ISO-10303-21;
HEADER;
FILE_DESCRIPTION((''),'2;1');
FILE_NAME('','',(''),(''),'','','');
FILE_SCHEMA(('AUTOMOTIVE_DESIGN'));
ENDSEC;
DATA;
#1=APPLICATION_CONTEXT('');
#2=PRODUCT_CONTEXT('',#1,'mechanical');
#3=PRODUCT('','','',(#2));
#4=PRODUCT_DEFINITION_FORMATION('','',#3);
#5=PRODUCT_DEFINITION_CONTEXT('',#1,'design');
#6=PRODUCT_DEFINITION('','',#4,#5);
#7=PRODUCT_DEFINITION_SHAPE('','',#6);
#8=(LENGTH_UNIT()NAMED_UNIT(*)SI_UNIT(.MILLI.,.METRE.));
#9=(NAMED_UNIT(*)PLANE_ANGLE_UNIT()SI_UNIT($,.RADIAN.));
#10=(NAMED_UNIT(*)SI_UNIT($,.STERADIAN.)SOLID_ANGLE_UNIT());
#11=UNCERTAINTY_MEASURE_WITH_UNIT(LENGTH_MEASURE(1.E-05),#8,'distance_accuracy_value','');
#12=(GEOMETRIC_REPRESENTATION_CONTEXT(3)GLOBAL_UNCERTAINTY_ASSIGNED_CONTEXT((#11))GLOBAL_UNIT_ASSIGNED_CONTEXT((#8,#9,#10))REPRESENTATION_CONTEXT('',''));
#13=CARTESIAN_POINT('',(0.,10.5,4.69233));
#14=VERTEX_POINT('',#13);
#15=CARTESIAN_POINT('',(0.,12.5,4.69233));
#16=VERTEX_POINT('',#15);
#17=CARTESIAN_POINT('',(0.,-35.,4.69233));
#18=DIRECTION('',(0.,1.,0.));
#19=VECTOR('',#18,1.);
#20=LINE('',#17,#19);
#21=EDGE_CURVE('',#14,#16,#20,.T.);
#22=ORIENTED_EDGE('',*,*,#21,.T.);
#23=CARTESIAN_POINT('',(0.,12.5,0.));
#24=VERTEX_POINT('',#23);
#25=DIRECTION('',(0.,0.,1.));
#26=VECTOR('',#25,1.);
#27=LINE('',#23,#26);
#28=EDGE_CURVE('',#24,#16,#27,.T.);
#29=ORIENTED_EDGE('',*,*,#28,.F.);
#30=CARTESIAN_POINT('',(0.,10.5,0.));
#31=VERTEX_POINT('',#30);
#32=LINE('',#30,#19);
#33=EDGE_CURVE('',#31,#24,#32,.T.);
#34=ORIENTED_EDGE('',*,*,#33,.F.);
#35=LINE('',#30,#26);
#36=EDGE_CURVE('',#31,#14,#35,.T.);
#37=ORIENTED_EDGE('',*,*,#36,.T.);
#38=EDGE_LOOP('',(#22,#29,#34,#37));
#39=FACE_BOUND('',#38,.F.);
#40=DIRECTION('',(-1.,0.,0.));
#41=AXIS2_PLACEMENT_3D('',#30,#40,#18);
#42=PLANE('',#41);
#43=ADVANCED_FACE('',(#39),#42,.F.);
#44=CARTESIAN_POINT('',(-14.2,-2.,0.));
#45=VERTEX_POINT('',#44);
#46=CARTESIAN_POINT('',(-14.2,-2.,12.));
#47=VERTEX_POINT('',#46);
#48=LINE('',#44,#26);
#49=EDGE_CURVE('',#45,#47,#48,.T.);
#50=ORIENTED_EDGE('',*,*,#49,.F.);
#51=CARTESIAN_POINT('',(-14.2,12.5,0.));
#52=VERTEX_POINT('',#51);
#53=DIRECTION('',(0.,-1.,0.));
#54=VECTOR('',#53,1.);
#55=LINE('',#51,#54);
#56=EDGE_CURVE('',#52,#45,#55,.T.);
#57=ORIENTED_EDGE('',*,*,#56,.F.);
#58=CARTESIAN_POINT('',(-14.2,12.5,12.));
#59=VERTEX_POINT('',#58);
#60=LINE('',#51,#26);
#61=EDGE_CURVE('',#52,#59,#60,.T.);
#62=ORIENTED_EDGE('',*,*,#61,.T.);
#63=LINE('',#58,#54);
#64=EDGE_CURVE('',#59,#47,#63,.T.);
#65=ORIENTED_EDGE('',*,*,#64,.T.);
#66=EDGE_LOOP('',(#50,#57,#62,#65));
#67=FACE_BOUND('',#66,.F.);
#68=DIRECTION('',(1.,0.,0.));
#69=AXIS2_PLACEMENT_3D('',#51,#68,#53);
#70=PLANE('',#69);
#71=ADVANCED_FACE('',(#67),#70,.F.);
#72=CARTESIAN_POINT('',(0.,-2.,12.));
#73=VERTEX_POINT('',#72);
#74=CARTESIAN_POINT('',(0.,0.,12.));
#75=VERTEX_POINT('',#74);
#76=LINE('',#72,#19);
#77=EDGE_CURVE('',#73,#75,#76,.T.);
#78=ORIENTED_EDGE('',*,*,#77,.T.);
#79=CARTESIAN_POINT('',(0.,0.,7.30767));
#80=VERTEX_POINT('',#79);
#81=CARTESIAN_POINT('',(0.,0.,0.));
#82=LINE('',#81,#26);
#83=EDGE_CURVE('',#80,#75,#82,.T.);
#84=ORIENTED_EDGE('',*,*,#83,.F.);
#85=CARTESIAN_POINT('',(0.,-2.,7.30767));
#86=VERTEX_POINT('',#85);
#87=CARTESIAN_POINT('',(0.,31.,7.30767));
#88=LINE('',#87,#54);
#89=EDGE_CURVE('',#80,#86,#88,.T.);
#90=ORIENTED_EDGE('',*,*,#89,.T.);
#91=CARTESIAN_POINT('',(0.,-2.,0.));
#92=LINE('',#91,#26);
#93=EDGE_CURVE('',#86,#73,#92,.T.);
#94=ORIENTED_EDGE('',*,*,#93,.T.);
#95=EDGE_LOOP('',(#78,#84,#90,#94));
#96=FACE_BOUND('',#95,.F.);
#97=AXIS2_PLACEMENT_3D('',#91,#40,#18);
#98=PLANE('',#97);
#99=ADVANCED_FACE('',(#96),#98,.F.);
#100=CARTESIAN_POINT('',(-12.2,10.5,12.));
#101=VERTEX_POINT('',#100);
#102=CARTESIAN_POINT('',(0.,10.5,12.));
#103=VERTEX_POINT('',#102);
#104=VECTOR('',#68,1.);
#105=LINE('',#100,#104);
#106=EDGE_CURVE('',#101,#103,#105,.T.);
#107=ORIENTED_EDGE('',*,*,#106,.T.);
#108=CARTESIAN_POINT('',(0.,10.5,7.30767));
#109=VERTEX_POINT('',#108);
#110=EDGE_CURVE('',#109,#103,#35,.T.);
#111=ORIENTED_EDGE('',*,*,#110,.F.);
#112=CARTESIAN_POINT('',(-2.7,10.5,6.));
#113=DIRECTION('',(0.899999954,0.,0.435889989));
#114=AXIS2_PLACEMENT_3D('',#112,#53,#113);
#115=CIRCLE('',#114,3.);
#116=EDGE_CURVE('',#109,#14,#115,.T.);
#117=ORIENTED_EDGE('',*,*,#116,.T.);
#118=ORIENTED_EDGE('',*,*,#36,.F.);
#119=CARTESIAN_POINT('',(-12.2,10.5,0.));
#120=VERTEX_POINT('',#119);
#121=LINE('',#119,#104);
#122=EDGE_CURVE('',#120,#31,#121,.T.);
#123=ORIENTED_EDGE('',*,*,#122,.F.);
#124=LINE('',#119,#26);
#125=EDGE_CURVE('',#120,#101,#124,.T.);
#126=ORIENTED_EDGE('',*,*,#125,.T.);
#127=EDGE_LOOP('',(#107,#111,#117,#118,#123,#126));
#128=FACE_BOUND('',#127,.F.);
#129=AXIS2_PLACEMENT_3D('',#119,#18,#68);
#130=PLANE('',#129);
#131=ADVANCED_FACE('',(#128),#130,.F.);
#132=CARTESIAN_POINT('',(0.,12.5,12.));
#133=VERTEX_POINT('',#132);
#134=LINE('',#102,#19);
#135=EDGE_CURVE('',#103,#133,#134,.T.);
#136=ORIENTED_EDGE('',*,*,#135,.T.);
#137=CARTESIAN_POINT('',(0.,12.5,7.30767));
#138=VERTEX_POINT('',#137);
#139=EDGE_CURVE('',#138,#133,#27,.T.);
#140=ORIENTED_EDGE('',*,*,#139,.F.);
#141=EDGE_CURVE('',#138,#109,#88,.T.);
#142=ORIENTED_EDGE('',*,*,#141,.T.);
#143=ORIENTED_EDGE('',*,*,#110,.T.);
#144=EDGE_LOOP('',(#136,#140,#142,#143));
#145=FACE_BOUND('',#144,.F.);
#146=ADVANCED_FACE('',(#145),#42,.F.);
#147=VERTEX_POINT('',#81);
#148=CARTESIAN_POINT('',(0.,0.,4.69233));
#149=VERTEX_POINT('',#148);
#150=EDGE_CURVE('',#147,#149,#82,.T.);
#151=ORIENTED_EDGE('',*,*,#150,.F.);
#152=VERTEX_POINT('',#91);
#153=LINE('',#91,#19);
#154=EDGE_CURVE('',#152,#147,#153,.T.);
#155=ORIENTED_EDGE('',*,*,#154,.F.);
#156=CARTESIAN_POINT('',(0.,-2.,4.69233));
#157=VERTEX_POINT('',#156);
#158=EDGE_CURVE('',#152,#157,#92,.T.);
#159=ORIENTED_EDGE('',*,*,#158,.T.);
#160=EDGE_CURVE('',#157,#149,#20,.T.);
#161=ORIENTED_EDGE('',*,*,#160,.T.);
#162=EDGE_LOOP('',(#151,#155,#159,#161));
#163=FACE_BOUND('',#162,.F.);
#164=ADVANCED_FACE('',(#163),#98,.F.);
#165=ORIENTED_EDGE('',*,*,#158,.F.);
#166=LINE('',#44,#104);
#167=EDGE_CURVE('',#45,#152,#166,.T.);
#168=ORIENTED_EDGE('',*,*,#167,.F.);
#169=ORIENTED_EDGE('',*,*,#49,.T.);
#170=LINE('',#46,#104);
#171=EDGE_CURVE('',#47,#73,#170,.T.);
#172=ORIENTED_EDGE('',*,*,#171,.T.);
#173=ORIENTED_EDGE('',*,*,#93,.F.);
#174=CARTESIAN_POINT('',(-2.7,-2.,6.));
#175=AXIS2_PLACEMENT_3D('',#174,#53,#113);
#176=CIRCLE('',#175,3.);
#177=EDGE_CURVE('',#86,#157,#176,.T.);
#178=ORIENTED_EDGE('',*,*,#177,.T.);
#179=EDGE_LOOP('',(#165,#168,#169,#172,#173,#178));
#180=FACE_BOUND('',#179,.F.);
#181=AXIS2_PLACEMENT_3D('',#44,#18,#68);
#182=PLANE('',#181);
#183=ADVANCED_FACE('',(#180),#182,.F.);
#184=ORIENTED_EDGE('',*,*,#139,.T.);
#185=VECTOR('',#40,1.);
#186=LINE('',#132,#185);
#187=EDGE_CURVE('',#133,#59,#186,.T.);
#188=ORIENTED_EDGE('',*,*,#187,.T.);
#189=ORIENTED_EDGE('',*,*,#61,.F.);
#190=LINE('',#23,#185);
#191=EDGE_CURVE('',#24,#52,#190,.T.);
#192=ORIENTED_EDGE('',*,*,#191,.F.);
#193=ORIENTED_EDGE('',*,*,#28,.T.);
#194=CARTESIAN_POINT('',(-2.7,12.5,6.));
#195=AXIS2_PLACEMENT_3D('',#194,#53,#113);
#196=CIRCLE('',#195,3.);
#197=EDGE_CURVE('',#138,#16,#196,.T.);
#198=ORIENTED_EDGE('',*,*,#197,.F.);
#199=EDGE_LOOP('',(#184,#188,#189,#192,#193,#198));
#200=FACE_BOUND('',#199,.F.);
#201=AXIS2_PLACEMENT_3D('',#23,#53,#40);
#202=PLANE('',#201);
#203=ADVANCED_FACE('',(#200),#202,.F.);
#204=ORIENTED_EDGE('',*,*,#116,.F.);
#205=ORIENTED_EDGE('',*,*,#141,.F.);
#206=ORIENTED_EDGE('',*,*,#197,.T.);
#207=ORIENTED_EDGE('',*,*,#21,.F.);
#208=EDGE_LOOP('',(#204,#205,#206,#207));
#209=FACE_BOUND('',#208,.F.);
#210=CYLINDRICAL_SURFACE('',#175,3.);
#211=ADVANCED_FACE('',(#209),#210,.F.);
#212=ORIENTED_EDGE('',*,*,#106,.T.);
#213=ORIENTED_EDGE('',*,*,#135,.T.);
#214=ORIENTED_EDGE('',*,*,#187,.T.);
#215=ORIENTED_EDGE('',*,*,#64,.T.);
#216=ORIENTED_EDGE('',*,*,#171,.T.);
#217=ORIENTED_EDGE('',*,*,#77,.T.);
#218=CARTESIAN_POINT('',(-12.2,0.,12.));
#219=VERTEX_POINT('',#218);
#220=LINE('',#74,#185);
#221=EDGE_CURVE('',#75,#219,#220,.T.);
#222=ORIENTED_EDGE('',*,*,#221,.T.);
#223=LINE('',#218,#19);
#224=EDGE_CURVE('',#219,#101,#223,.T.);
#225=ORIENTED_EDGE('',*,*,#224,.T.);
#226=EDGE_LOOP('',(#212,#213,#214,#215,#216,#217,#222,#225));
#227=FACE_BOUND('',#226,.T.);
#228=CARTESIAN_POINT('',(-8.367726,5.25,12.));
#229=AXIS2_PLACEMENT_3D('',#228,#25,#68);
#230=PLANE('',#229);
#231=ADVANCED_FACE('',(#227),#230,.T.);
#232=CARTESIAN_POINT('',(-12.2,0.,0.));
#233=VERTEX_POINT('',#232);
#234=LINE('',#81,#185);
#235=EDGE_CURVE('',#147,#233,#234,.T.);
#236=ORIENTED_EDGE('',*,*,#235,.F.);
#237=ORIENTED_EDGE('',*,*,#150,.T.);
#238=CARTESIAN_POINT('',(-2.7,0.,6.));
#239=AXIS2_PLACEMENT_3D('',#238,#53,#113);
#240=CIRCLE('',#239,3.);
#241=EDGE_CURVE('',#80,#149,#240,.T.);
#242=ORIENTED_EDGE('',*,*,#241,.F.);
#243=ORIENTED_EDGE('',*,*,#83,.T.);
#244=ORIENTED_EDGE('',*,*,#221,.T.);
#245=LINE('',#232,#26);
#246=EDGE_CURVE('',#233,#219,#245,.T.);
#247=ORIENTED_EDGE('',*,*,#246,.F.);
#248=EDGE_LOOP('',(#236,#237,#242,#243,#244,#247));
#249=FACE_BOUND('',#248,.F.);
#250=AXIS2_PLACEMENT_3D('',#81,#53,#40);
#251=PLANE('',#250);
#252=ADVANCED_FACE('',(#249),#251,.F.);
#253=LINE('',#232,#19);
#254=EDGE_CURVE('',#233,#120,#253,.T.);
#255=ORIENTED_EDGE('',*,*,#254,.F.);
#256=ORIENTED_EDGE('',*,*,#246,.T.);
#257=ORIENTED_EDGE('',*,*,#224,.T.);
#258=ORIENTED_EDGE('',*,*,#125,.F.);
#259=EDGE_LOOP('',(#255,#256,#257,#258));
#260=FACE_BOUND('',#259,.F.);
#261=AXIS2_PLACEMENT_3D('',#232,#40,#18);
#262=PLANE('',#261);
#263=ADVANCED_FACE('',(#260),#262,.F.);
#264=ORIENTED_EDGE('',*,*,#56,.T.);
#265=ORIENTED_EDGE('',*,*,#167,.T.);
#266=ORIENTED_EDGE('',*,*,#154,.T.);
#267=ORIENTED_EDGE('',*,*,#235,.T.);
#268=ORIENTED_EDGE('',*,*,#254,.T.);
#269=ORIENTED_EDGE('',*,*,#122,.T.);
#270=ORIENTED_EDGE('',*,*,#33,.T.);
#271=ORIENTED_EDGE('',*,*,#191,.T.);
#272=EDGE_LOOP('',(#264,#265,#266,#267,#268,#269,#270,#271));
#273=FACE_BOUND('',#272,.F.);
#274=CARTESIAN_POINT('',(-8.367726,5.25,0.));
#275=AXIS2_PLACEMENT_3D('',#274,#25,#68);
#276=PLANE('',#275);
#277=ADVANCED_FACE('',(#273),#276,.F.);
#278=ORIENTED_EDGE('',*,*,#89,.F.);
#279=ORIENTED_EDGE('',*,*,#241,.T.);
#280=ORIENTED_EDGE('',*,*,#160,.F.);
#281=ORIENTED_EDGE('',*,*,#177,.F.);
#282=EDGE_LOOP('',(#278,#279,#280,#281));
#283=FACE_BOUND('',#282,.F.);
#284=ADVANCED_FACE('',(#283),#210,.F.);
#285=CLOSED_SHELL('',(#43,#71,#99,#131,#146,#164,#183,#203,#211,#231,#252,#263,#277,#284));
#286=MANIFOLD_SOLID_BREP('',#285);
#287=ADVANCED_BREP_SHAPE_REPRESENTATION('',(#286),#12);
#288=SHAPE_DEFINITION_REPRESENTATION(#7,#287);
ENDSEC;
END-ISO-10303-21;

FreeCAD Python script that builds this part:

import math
import FreeCAD as App
import Part
import Sketcher


def add_polygon(sketch, points):
    """Adds a closed chain of lines whose ends are joined by coincident constraints."""
    first, n = sketch.GeometryCount, len(points)
    for a, b in zip(points, points[1:] + points[:1]):
        sketch.addGeometry(Part.LineSegment(App.Vector(*a, 0), App.Vector(*b, 0)), False)
    for i in range(n):
        sketch.addConstraint(Sketcher.Constraint("Coincident", first + i, 2, first + (i + 1) % n, 1))

doc = App.newDocument("Part")
body = doc.addObject("PartDesign::Body", "Body")

# Sketch on XY plane
sketch1 = doc.addObject("Sketcher::SketchObject", "Sketch")
body.addObject(sketch1)
sketch1.AttachmentSupport = (doc.XY_Plane, [""])
sketch1.MapMode = "FlatFace"
add_polygon(sketch1, [(0, -2), (0, 0), (-12.2, 0), (-12.2, 10.5), (0, 10.5), (0, 12.5), (-14.2, 12.5), (-14.2, -2)])  # lines 0-7
sketch1.addConstraint(Sketcher.Constraint("Vertical", 0))
sketch1.addConstraint(Sketcher.Constraint("Horizontal", 1))
sketch1.addConstraint(Sketcher.Constraint("Vertical", 2))
sketch1.addConstraint(Sketcher.Constraint("Horizontal", 3))
sketch1.addConstraint(Sketcher.Constraint("Vertical", 4))
sketch1.addConstraint(Sketcher.Constraint("Horizontal", 5))
sketch1.addConstraint(Sketcher.Constraint("Vertical", 6))
sketch1.addConstraint(Sketcher.Constraint("Horizontal", 7))
sketch1.addConstraint(Sketcher.Constraint("Coincident", 0, 2, -1, 1))
sketch1.addConstraint(Sketcher.Constraint("PointOnObject", 3, 2, -2))
sketch1.addConstraint(Sketcher.Constraint("Equal", 0, 4))
sketch1.addConstraint(Sketcher.Constraint("DistanceY", 0, 1, 0, 2, 2.0))
sketch1.addConstraint(Sketcher.Constraint("DistanceX", 1, 2, 1, 1, 12.2))
sketch1.addConstraint(Sketcher.Constraint("DistanceX", 5, 2, 5, 1, 14.2))
sketch1.addConstraint(Sketcher.Constraint("DistanceY", 2, 1, 2, 2, 10.5))
pad1 = doc.addObject("PartDesign::Pad", "Pad")
body.addObject(pad1)
pad1.Profile = sketch1
pad1.Length = 12

# Sketch on XZ plane
sketch2 = doc.addObject("Sketcher::SketchObject", "Sketch001")
body.addObject(sketch2)
sketch2.AttachmentSupport = (doc.XZ_Plane, [""])
sketch2.MapMode = "FlatFace"
sketch2.AttachmentOffset = App.Placement(App.Vector(0, 0, 2), App.Rotation())
sketch2.addGeometry(Part.LineSegment(App.Vector(0, 4.69233, 0), App.Vector(0, 7.30767, 0)), False)
sketch2.addGeometry(Part.ArcOfCircle(Part.Circle(App.Vector(-2.7, 6, 0), App.Vector(0, 0, 1), 3), math.radians(25.841939), math.radians(334.158061)), False)
sketch2.addConstraint(Sketcher.Constraint("Coincident", 0, 1, 1, 2))
sketch2.addConstraint(Sketcher.Constraint("Coincident", 1, 1, 0, 2))
sketch2.addConstraint(Sketcher.Constraint("Vertical", 0))
sketch2.addConstraint(Sketcher.Constraint("PointOnObject", 0, 1, -2))
sketch2.addConstraint(Sketcher.Constraint("Radius", 1, 3.0))
sketch2.addConstraint(Sketcher.Constraint("DistanceY", -1, 1, 1, 3, 6.0))
sketch2.addConstraint(Sketcher.Constraint("DistanceX", 1, 3, -1, 1, 2.7))
pocket1 = doc.addObject("PartDesign::Pocket", "Pocket")
body.addObject(pocket1)
pocket1.Profile = sketch2
pocket1.Length = 66
pocket1.Midplane = True

doc.recompute()
